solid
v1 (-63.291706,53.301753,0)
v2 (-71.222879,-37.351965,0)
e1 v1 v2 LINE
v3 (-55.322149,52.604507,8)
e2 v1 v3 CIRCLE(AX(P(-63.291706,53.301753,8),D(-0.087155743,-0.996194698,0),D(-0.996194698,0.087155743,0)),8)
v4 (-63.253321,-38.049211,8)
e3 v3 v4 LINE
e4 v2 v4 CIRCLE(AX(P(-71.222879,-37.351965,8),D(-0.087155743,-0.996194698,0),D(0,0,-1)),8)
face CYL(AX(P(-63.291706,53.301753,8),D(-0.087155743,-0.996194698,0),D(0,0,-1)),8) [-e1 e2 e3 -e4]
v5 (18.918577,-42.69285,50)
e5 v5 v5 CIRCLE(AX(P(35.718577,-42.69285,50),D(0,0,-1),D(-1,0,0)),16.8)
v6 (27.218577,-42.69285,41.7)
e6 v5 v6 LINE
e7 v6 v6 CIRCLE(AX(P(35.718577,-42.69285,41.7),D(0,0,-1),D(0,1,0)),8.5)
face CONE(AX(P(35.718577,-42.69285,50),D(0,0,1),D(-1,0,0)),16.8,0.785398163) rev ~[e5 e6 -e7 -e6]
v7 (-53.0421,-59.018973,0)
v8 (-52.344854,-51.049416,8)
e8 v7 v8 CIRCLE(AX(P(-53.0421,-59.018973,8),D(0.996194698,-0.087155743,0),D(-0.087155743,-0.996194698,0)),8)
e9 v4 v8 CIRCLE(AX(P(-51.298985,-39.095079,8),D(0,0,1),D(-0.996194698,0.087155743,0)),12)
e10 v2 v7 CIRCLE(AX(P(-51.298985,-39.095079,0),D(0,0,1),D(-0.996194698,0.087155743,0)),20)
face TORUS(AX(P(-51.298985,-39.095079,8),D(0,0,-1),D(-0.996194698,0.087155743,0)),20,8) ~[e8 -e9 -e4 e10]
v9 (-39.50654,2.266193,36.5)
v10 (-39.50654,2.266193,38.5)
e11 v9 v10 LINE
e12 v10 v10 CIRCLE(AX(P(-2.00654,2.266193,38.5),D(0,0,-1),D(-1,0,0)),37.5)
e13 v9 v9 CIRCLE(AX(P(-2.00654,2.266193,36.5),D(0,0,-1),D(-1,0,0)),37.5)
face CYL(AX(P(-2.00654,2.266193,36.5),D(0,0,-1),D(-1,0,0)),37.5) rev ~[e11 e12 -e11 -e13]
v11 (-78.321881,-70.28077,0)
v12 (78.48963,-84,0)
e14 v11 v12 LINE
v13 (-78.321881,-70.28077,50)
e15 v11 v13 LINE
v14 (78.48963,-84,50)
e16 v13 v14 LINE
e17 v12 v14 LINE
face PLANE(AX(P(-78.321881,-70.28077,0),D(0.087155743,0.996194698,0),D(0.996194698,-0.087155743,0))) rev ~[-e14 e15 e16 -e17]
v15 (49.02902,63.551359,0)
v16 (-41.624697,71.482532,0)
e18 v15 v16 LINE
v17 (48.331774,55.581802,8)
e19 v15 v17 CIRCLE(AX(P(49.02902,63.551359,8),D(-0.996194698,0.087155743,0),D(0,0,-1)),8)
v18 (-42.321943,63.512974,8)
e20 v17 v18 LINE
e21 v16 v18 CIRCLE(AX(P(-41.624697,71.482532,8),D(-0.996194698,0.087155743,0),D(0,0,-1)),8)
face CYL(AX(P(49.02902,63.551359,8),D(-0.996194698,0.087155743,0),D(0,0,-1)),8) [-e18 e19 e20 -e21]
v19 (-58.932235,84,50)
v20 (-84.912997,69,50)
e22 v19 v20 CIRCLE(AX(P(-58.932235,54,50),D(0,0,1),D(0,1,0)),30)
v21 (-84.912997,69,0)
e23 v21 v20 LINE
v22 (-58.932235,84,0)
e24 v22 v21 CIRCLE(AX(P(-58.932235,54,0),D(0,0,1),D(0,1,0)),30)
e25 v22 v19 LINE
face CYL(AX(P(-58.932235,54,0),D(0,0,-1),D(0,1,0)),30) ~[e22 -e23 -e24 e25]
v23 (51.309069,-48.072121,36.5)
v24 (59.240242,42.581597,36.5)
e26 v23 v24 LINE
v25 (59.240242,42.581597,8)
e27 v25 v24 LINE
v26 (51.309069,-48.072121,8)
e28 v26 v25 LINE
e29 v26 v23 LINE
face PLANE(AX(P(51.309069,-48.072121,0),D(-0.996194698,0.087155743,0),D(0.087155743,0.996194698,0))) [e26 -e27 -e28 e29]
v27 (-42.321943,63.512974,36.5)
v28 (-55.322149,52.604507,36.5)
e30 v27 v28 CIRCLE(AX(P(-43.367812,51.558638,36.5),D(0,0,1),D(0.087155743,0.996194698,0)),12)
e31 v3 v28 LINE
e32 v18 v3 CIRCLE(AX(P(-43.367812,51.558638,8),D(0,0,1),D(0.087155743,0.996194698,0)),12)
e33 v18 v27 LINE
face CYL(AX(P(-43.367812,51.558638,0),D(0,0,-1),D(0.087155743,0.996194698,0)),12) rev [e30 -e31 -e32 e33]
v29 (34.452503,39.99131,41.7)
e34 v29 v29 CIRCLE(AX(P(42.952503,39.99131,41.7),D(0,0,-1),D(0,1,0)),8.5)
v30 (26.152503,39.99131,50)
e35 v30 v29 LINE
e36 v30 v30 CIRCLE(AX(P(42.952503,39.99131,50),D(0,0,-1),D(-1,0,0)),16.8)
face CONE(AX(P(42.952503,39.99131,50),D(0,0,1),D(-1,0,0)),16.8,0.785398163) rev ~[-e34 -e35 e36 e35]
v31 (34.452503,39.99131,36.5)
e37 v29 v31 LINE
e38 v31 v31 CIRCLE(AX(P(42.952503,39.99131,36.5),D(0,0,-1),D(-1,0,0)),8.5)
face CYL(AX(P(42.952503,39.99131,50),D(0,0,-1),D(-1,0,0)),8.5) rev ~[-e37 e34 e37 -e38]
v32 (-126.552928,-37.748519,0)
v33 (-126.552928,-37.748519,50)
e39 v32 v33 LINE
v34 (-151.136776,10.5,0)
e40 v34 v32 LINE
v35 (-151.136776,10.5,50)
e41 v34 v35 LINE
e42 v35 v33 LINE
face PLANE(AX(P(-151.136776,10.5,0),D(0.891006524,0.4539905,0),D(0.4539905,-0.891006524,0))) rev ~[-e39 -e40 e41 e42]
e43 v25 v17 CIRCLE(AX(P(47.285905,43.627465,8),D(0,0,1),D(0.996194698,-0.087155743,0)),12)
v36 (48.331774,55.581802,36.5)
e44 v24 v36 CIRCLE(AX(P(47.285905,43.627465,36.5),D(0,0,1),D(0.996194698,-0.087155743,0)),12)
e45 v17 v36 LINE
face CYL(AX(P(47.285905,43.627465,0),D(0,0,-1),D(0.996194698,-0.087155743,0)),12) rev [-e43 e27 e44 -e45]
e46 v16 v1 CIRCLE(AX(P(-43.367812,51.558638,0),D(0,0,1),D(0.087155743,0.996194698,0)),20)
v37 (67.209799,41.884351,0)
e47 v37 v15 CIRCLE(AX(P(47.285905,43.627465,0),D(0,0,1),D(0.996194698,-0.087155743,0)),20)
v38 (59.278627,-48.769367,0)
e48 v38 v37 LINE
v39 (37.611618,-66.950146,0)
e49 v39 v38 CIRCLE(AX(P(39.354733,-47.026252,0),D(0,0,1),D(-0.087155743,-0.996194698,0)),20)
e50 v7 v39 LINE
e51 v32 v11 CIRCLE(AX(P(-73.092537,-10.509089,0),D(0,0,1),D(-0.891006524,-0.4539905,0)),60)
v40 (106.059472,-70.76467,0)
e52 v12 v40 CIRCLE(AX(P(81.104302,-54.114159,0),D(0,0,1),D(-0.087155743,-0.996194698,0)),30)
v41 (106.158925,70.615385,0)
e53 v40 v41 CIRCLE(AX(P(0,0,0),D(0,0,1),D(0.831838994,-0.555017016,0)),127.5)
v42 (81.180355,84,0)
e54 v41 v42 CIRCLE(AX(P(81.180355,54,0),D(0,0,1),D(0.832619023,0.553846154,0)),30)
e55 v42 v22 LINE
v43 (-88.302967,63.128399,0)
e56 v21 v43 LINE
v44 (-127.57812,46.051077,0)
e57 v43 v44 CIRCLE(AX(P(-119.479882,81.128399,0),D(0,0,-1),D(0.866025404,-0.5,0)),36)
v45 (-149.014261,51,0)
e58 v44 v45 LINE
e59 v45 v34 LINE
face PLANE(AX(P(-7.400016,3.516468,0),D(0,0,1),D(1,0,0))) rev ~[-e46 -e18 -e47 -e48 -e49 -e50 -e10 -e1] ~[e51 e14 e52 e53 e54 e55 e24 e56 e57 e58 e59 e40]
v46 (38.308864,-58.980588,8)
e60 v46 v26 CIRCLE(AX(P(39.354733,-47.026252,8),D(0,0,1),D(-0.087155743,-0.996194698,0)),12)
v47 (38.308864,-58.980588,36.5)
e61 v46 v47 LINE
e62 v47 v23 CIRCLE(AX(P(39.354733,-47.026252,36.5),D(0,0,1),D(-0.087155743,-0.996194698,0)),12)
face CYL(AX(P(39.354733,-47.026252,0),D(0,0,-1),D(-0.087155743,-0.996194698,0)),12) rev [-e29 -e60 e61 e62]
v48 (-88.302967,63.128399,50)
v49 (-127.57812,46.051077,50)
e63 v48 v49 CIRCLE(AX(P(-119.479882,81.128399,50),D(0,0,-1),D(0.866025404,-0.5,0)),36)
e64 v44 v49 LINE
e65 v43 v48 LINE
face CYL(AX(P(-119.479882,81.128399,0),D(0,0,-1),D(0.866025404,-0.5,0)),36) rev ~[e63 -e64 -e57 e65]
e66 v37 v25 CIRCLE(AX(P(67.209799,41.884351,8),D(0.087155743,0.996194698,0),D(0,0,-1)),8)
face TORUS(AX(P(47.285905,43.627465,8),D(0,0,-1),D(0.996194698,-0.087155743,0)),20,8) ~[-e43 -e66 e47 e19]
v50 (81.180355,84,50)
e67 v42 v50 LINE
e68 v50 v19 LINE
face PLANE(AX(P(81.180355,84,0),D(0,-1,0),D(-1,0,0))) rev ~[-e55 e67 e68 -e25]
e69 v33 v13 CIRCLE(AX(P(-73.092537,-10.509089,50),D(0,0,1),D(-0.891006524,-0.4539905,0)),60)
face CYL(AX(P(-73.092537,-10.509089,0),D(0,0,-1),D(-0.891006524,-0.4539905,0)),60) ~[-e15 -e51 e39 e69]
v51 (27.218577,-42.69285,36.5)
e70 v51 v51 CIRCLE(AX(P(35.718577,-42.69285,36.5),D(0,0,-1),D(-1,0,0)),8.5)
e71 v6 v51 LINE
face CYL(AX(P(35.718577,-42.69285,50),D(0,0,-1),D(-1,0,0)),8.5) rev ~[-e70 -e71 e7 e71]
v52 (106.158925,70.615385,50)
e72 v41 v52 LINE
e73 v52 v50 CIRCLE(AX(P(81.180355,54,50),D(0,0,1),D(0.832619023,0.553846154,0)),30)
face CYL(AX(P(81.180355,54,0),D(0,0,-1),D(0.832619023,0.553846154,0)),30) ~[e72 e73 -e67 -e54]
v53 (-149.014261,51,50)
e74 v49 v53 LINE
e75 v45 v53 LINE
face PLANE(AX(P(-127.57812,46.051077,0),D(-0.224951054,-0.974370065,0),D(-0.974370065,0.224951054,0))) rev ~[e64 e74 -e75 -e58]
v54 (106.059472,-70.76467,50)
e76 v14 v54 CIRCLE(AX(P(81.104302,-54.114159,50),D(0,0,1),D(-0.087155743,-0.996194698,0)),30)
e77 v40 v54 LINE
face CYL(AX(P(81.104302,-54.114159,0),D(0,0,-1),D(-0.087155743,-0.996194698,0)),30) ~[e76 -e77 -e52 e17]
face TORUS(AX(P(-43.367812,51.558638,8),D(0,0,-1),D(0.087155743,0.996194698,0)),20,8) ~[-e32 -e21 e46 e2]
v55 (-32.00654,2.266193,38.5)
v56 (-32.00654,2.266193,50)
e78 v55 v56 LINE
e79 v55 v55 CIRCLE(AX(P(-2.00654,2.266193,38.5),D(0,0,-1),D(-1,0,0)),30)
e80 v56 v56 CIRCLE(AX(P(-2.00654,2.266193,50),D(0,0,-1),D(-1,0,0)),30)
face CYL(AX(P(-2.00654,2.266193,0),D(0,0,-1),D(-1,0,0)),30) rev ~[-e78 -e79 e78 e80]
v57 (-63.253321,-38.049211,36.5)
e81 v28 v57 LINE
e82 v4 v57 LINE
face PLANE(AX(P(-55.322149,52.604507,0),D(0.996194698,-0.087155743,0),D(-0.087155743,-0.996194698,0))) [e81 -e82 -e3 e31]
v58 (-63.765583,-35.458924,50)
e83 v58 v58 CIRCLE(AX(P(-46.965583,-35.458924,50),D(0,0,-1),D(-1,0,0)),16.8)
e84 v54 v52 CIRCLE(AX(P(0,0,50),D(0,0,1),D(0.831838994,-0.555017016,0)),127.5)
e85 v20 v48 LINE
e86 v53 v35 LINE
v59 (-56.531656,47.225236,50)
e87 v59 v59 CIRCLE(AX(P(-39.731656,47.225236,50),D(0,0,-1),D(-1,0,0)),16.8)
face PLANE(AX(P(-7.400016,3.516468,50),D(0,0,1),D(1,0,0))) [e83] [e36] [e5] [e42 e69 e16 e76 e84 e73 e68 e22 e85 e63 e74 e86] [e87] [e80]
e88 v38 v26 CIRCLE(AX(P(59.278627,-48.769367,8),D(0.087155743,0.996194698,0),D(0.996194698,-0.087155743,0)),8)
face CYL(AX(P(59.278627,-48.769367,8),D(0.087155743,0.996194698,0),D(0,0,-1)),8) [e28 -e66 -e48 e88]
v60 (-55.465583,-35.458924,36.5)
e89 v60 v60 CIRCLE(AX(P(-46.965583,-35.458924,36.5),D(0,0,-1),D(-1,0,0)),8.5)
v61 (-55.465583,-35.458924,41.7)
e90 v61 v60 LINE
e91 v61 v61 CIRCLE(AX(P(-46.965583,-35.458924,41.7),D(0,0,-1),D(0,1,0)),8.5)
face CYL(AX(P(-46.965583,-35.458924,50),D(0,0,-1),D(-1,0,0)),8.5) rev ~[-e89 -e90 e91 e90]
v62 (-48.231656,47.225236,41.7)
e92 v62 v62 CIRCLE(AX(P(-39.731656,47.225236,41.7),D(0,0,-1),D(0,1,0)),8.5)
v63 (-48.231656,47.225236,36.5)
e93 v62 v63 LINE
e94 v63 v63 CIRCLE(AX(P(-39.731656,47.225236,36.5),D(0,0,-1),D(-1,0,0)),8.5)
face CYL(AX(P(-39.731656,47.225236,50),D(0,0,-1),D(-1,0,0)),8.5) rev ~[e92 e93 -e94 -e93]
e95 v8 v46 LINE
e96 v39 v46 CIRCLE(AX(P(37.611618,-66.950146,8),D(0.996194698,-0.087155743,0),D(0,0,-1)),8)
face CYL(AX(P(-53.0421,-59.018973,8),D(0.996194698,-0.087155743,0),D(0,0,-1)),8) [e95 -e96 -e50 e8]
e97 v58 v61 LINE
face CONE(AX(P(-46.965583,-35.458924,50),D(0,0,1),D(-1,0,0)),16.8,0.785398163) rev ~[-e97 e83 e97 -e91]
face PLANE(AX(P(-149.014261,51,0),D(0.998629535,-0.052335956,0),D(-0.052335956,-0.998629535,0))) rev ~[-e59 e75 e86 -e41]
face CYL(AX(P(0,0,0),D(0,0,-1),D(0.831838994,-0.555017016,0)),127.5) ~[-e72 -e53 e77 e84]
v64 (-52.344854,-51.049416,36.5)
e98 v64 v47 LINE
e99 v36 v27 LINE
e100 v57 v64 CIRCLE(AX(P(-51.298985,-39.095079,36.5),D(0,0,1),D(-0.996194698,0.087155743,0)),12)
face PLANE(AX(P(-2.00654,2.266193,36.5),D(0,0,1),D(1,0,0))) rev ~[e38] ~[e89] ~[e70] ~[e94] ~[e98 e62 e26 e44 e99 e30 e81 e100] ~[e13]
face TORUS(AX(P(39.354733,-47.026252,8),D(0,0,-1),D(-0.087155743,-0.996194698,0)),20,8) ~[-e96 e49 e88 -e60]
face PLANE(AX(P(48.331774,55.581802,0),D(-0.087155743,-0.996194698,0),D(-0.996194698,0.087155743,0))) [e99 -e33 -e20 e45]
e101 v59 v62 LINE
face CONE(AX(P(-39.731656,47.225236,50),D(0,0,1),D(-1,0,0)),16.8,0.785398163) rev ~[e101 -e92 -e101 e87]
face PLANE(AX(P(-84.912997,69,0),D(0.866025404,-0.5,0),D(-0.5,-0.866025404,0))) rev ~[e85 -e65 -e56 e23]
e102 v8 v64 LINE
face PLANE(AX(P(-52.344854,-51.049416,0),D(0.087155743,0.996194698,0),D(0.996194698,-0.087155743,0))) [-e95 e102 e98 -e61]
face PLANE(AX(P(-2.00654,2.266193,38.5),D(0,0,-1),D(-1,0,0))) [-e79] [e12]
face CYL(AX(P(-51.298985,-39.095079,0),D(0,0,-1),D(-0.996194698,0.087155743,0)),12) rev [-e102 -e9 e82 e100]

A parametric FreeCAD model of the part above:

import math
import FreeCAD as App
import Part
import Sketcher

V = App.Vector
Q = App.Units.Quantity


def edges_at(feature, points):
    """Names of the edges that pass closest to the given points."""
    edges = feature.Shape.Edges
    near = lambda p: min(range(len(edges)), key=lambda i: edges[i].distToShape(Part.Vertex(*p))[0])
    return sorted({f"Edge{near(p) + 1}" for p in points})

doc = App.newDocument("Part")
body = doc.addObject("PartDesign::Body", "Body")

sketch1 = doc.addObject("Sketcher::SketchObject", "Sketch")
body.addObject(sketch1)
sketch1.AttachmentSupport = (doc.XY_Plane, [""])
sketch1.MapMode = "FlatFace"
sketch1.addGeometry([
    Part.LineSegment(V(-128, 46, 0), V(-149, 51, 0)),
    Part.LineSegment(V(-149, 51, 0), V(-151, 10, 0)),
    Part.LineSegment(V(-151, 10, 0), V(-127, -38, 0)),
    Part.ArcOfCircle(Part.Circle(V(-73, -11, 0), V(0, 0, 1), 60), math.radians(-153), math.radians(-95)),
    Part.LineSegment(V(-78, -70, 0), V(78, -84, 0)),
    Part.ArcOfCircle(Part.Circle(V(81, -54, 0), V(0, 0, 1), 30), math.radians(-95), math.radians(-34)),
    Part.ArcOfCircle(Part.Circle(V(0, 0, 0), V(0, 0, 1), 127), math.radians(-34), math.radians(34)),
    Part.ArcOfCircle(Part.Circle(V(81, 54, 0), V(0, 0, 1), 30), math.radians(34), math.radians(90)),
    Part.LineSegment(V(81, 84, 0), V(-59, 84, 0)),
    Part.ArcOfCircle(Part.Circle(V(-59, 54, 0), V(0, 0, 1), 30), math.radians(90), math.radians(150)),
    Part.LineSegment(V(-85, 69, 0), V(-88, 63, 0)),
    Part.ArcOfCircle(Part.Circle(V(-119, 81, 0), V(0, 0, 1), 36), math.radians(-103), math.radians(-30)),
], False)
sketch1.addConstraint([
    Sketcher.Constraint("Coincident", 0, 2, 1, 1),
    Sketcher.Constraint("Coincident", 1, 2, 2, 1),
    Sketcher.Constraint("Tangent", 2, 2, 3, 1),
    Sketcher.Constraint("Tangent", 3, 2, 4, 1),
    Sketcher.Constraint("Tangent", 4, 2, 5, 1),
    Sketcher.Constraint("Tangent", 5, 2, 6, 1),
    Sketcher.Constraint("Tangent", 6, 2, 7, 1),
    Sketcher.Constraint("Tangent", 7, 2, 8, 1),
    Sketcher.Constraint("Tangent", 8, 2, 9, 1),
    Sketcher.Constraint("Tangent", 9, 2, 10, 1),
    Sketcher.Constraint("Tangent", 10, 2, 11, 2),
    Sketcher.Constraint("Tangent", 11, 1, 0, 1),
    Sketcher.Constraint("Horizontal", 8),
    Sketcher.Constraint("Coincident", 6, 3, -1, 1),
    Sketcher.Constraint("Equal", 5, 7),
    Sketcher.Constraint("Equal", 7, 9),
    Sketcher.Constraint("Radius", 3, 60.0),
    Sketcher.Constraint("Radius", 5, 30.0),
    Sketcher.Constraint("Radius", 11, 36.0),
    Sketcher.Constraint("Radius", 6, 127.5),
    Sketcher.Constraint("Angle", 0, Q("167 deg")),
    Sketcher.Constraint("Angle", 1, Q("-93 deg")),
    Sketcher.Constraint("Angle", 2, Q("-63 deg")),
    Sketcher.Constraint("Angle", 4, Q("-5 deg")),
    Sketcher.Constraint("Angle", 10, Q("-120 deg")),
    Sketcher.Constraint("Distance", 0, 22.0),
    Sketcher.Constraint("DistanceY", -1, 1, 7, 3, 54.0),
    Sketcher.Constraint("DistanceY", -1, 1, 0, 2, 51.0),
    Sketcher.Constraint("DistanceY", 4, 2, -1, 1, 84.0),
    Sketcher.Constraint("DistanceY", -1, 1, 1, 2, 10.5),
    Sketcher.Constraint("DistanceX", 8, 2, 8, 1, 140.112589),
])
pad1 = doc.addObject("PartDesign::Pad", "Pad")
body.addObject(pad1)
pad1.Profile = sketch1
pad1.Length = 50

sketch2 = doc.addObject("Sketcher::SketchObject", "Sketch001")
body.addObject(sketch2)
sketch2.AttachmentSupport = (doc.XY_Plane, [""])
sketch2.MapMode = "FlatFace"
sketch2.addGeometry([
    Part.LineSegment(V(-42, 64, 0), V(48, 56, 0)),
    Part.ArcOfCircle(Part.Circle(V(47, 44, 0), V(0, 0, 1), 12), math.radians(-5), math.radians(85)),
    Part.LineSegment(V(59, 43, 0), V(51, -48, 0)),
    Part.ArcOfCircle(Part.Circle(V(39, -47, 0), V(0, 0, 1), 12), math.radians(-95), math.radians(-5)),
    Part.LineSegment(V(38, -59, 0), V(-52, -51, 0)),
    Part.ArcOfCircle(Part.Circle(V(-51, -39, 0), V(0, 0, 1), 12), math.radians(175), math.radians(265)),
    Part.LineSegment(V(-63, -38, 0), V(-55, 53, 0)),
    Part.ArcOfCircle(Part.Circle(V(-43, 52, 0), V(0, 0, 1), 12), math.radians(85), math.radians(175)),
], False)
sketch2.addConstraint([
    Sketcher.Constraint("Tangent", 0, 2, 1, 2),
    Sketcher.Constraint("Tangent", 1, 1, 2, 1),
    Sketcher.Constraint("Tangent", 2, 2, 3, 2),
    Sketcher.Constraint("Tangent", 3, 1, 4, 1),
    Sketcher.Constraint("Tangent", 4, 2, 5, 2),
    Sketcher.Constraint("Tangent", 5, 1, 6, 1),
    Sketcher.Constraint("Tangent", 6, 2, 7, 2),
    Sketcher.Constraint("Tangent", 7, 1, 0, 1),
    Sketcher.Constraint("Equal", 1, 3),
    Sketcher.Constraint("Equal", 3, 5),
    Sketcher.Constraint("Equal", 5, 7),
    Sketcher.Constraint("Perpendicular", 0, 2),
    Sketcher.Constraint("Perpendicular", 2, 4),
    Sketcher.Constraint("Perpendicular", 4, 6),
    Sketcher.Constraint("Equal", 0, 2),
    Sketcher.Constraint("Radius", 1, 12.0),
    Sketcher.Constraint("Angle", 0, Q("-5 deg")),
    Sketcher.Constraint("Distance", 0, 91.0),
    Sketcher.Constraint("DistanceY", -1, 1, 0, 2, 55.581802),
    Sketcher.Constraint("DistanceX", -1, 1, 1, 1, 59.240242),
])
pocket1 = doc.addObject("PartDesign::Pocket", "Pocket")
body.addObject(pocket1)
pocket1.Profile = sketch2
pocket1.Length = 36.5
pocket1.Reversed = True
doc.recompute()

fillet = doc.addObject("PartDesign::Fillet", "Fillet")
body.addObject(fillet)
fillet.Base = (pocket1, edges_at(pocket1, [
    (3.005, 59.547, 0),
    (-51.081, 60.751, 0),
    (-59.288, 7.278, 0),
    (56.478, 51.341, 0),
    (55.275, -2.745, 0),
    (47.068, -56.219, 0),
    (-7.018, -55.015, 0),
    (-60.492, -46.809, 0),
]))
fillet.Radius = 8

sketch3 = doc.addObject("Sketcher::SketchObject", "Sketch002")
body.addObject(sketch3)
sketch3.AttachmentSupport = (doc.XY_Plane, [""])
sketch3.MapMode = "FlatFace"
sketch3.addGeometry(Part.Circle(V(-2, 2, 0), V(0, 0, 1), 30), False)
sketch3.addConstraint([
    Sketcher.Constraint("Diameter", 0, 60.0),
    Sketcher.Constraint("DistanceX", 0, 3, -1, 1, 2.00654),
    Sketcher.Constraint("DistanceY", -1, 1, 0, 3, 2.266193),
])
pocket2 = doc.addObject("PartDesign::Pocket", "Pocket001")
body.addObject(pocket2)
pocket2.Profile = sketch3
pocket2.Type = "ThroughAll"
pocket2.Reversed = True

sketch4 = doc.addObject("Sketcher::SketchObject", "Sketch003")
body.addObject(sketch4)
sketch4.AttachmentSupport = (doc.XY_Plane, [""])
sketch4.MapMode = "FlatFace"
sketch4.AttachmentOffset = App.Placement(V(0, 0, 36.5), App.Rotation())
sketch4.addGeometry(Part.Circle(V(-2, 2, 0), V(0, 0, 1), 38), False)
sketch4.addConstraint([
    Sketcher.Constraint("Diameter", 0, 75.0),
    Sketcher.Constraint("DistanceX", 0, 3, -1, 1, 2.00654),
    Sketcher.Constraint("DistanceY", -1, 1, 0, 3, 2.266193),
])
pocket3 = doc.addObject("PartDesign::Pocket", "Pocket002")
body.addObject(pocket3)
pocket3.Profile = sketch4
pocket3.Length = 2
pocket3.Reversed = True

sketch5 = doc.addObject("Sketcher::SketchObject", "Sketch004")
body.addObject(sketch5)
sketch5.AttachmentSupport = (doc.XY_Plane, [""])
sketch5.MapMode = "FlatFace"
sketch5.AttachmentOffset = App.Placement(V(0, 0, 50), App.Rotation())
sketch5.addGeometry([
    Part.Circle(V(-40, 47, 0), V(0, 0, 1), 8),
    Part.Circle(V(43, 40, 0), V(0, 0, 1), 8),
    Part.Circle(V(-47, -35, 0), V(0, 0, 1), 8),
    Part.Circle(V(36, -43, 0), V(0, 0, 1), 8),
], False)
sketch5.addConstraint([
    Sketcher.Constraint("Equal", 0, 1),
    Sketcher.Constraint("Equal", 1, 2),
    Sketcher.Constraint("Equal", 2, 3),
    Sketcher.Constraint("Diameter", 0, 17.0),
    Sketcher.Constraint("DistanceY", -1, 1, 1, 3, 39.99131),
    Sketcher.Constraint("DistanceY", 3, 3, -1, 1, 42.69285),
    Sketcher.Constraint("DistanceX", 0, 3, 1, 3, 82.68416),
    Sketcher.Constraint("DistanceY", 2, 3, 0, 3, 82.68416),
    Sketcher.Constraint("DistanceX", 2, 3, 3, 3, 82.68416),
    Sketcher.Constraint("DistanceX", 0, 3, -1, 1, 39.731656),
    Sketcher.Constraint("DistanceY", -1, 1, 0, 3, 47.225236),
    Sketcher.Constraint("DistanceX", 2, 3, -1, 1, 46.965583),
])
doc.recompute()
hole = doc.addObject("PartDesign::Hole", "Hole")
body.addObject(hole)
hole.Profile = sketch5
hole.ThreadType = "None"
hole.Diameter = 17
hole.DepthType = "ThroughAll"
hole.HoleCutType = "Countersink"
hole.HoleCutDiameter = 33.6
hole.HoleCutCountersinkAngle = 90

doc.recompute()
